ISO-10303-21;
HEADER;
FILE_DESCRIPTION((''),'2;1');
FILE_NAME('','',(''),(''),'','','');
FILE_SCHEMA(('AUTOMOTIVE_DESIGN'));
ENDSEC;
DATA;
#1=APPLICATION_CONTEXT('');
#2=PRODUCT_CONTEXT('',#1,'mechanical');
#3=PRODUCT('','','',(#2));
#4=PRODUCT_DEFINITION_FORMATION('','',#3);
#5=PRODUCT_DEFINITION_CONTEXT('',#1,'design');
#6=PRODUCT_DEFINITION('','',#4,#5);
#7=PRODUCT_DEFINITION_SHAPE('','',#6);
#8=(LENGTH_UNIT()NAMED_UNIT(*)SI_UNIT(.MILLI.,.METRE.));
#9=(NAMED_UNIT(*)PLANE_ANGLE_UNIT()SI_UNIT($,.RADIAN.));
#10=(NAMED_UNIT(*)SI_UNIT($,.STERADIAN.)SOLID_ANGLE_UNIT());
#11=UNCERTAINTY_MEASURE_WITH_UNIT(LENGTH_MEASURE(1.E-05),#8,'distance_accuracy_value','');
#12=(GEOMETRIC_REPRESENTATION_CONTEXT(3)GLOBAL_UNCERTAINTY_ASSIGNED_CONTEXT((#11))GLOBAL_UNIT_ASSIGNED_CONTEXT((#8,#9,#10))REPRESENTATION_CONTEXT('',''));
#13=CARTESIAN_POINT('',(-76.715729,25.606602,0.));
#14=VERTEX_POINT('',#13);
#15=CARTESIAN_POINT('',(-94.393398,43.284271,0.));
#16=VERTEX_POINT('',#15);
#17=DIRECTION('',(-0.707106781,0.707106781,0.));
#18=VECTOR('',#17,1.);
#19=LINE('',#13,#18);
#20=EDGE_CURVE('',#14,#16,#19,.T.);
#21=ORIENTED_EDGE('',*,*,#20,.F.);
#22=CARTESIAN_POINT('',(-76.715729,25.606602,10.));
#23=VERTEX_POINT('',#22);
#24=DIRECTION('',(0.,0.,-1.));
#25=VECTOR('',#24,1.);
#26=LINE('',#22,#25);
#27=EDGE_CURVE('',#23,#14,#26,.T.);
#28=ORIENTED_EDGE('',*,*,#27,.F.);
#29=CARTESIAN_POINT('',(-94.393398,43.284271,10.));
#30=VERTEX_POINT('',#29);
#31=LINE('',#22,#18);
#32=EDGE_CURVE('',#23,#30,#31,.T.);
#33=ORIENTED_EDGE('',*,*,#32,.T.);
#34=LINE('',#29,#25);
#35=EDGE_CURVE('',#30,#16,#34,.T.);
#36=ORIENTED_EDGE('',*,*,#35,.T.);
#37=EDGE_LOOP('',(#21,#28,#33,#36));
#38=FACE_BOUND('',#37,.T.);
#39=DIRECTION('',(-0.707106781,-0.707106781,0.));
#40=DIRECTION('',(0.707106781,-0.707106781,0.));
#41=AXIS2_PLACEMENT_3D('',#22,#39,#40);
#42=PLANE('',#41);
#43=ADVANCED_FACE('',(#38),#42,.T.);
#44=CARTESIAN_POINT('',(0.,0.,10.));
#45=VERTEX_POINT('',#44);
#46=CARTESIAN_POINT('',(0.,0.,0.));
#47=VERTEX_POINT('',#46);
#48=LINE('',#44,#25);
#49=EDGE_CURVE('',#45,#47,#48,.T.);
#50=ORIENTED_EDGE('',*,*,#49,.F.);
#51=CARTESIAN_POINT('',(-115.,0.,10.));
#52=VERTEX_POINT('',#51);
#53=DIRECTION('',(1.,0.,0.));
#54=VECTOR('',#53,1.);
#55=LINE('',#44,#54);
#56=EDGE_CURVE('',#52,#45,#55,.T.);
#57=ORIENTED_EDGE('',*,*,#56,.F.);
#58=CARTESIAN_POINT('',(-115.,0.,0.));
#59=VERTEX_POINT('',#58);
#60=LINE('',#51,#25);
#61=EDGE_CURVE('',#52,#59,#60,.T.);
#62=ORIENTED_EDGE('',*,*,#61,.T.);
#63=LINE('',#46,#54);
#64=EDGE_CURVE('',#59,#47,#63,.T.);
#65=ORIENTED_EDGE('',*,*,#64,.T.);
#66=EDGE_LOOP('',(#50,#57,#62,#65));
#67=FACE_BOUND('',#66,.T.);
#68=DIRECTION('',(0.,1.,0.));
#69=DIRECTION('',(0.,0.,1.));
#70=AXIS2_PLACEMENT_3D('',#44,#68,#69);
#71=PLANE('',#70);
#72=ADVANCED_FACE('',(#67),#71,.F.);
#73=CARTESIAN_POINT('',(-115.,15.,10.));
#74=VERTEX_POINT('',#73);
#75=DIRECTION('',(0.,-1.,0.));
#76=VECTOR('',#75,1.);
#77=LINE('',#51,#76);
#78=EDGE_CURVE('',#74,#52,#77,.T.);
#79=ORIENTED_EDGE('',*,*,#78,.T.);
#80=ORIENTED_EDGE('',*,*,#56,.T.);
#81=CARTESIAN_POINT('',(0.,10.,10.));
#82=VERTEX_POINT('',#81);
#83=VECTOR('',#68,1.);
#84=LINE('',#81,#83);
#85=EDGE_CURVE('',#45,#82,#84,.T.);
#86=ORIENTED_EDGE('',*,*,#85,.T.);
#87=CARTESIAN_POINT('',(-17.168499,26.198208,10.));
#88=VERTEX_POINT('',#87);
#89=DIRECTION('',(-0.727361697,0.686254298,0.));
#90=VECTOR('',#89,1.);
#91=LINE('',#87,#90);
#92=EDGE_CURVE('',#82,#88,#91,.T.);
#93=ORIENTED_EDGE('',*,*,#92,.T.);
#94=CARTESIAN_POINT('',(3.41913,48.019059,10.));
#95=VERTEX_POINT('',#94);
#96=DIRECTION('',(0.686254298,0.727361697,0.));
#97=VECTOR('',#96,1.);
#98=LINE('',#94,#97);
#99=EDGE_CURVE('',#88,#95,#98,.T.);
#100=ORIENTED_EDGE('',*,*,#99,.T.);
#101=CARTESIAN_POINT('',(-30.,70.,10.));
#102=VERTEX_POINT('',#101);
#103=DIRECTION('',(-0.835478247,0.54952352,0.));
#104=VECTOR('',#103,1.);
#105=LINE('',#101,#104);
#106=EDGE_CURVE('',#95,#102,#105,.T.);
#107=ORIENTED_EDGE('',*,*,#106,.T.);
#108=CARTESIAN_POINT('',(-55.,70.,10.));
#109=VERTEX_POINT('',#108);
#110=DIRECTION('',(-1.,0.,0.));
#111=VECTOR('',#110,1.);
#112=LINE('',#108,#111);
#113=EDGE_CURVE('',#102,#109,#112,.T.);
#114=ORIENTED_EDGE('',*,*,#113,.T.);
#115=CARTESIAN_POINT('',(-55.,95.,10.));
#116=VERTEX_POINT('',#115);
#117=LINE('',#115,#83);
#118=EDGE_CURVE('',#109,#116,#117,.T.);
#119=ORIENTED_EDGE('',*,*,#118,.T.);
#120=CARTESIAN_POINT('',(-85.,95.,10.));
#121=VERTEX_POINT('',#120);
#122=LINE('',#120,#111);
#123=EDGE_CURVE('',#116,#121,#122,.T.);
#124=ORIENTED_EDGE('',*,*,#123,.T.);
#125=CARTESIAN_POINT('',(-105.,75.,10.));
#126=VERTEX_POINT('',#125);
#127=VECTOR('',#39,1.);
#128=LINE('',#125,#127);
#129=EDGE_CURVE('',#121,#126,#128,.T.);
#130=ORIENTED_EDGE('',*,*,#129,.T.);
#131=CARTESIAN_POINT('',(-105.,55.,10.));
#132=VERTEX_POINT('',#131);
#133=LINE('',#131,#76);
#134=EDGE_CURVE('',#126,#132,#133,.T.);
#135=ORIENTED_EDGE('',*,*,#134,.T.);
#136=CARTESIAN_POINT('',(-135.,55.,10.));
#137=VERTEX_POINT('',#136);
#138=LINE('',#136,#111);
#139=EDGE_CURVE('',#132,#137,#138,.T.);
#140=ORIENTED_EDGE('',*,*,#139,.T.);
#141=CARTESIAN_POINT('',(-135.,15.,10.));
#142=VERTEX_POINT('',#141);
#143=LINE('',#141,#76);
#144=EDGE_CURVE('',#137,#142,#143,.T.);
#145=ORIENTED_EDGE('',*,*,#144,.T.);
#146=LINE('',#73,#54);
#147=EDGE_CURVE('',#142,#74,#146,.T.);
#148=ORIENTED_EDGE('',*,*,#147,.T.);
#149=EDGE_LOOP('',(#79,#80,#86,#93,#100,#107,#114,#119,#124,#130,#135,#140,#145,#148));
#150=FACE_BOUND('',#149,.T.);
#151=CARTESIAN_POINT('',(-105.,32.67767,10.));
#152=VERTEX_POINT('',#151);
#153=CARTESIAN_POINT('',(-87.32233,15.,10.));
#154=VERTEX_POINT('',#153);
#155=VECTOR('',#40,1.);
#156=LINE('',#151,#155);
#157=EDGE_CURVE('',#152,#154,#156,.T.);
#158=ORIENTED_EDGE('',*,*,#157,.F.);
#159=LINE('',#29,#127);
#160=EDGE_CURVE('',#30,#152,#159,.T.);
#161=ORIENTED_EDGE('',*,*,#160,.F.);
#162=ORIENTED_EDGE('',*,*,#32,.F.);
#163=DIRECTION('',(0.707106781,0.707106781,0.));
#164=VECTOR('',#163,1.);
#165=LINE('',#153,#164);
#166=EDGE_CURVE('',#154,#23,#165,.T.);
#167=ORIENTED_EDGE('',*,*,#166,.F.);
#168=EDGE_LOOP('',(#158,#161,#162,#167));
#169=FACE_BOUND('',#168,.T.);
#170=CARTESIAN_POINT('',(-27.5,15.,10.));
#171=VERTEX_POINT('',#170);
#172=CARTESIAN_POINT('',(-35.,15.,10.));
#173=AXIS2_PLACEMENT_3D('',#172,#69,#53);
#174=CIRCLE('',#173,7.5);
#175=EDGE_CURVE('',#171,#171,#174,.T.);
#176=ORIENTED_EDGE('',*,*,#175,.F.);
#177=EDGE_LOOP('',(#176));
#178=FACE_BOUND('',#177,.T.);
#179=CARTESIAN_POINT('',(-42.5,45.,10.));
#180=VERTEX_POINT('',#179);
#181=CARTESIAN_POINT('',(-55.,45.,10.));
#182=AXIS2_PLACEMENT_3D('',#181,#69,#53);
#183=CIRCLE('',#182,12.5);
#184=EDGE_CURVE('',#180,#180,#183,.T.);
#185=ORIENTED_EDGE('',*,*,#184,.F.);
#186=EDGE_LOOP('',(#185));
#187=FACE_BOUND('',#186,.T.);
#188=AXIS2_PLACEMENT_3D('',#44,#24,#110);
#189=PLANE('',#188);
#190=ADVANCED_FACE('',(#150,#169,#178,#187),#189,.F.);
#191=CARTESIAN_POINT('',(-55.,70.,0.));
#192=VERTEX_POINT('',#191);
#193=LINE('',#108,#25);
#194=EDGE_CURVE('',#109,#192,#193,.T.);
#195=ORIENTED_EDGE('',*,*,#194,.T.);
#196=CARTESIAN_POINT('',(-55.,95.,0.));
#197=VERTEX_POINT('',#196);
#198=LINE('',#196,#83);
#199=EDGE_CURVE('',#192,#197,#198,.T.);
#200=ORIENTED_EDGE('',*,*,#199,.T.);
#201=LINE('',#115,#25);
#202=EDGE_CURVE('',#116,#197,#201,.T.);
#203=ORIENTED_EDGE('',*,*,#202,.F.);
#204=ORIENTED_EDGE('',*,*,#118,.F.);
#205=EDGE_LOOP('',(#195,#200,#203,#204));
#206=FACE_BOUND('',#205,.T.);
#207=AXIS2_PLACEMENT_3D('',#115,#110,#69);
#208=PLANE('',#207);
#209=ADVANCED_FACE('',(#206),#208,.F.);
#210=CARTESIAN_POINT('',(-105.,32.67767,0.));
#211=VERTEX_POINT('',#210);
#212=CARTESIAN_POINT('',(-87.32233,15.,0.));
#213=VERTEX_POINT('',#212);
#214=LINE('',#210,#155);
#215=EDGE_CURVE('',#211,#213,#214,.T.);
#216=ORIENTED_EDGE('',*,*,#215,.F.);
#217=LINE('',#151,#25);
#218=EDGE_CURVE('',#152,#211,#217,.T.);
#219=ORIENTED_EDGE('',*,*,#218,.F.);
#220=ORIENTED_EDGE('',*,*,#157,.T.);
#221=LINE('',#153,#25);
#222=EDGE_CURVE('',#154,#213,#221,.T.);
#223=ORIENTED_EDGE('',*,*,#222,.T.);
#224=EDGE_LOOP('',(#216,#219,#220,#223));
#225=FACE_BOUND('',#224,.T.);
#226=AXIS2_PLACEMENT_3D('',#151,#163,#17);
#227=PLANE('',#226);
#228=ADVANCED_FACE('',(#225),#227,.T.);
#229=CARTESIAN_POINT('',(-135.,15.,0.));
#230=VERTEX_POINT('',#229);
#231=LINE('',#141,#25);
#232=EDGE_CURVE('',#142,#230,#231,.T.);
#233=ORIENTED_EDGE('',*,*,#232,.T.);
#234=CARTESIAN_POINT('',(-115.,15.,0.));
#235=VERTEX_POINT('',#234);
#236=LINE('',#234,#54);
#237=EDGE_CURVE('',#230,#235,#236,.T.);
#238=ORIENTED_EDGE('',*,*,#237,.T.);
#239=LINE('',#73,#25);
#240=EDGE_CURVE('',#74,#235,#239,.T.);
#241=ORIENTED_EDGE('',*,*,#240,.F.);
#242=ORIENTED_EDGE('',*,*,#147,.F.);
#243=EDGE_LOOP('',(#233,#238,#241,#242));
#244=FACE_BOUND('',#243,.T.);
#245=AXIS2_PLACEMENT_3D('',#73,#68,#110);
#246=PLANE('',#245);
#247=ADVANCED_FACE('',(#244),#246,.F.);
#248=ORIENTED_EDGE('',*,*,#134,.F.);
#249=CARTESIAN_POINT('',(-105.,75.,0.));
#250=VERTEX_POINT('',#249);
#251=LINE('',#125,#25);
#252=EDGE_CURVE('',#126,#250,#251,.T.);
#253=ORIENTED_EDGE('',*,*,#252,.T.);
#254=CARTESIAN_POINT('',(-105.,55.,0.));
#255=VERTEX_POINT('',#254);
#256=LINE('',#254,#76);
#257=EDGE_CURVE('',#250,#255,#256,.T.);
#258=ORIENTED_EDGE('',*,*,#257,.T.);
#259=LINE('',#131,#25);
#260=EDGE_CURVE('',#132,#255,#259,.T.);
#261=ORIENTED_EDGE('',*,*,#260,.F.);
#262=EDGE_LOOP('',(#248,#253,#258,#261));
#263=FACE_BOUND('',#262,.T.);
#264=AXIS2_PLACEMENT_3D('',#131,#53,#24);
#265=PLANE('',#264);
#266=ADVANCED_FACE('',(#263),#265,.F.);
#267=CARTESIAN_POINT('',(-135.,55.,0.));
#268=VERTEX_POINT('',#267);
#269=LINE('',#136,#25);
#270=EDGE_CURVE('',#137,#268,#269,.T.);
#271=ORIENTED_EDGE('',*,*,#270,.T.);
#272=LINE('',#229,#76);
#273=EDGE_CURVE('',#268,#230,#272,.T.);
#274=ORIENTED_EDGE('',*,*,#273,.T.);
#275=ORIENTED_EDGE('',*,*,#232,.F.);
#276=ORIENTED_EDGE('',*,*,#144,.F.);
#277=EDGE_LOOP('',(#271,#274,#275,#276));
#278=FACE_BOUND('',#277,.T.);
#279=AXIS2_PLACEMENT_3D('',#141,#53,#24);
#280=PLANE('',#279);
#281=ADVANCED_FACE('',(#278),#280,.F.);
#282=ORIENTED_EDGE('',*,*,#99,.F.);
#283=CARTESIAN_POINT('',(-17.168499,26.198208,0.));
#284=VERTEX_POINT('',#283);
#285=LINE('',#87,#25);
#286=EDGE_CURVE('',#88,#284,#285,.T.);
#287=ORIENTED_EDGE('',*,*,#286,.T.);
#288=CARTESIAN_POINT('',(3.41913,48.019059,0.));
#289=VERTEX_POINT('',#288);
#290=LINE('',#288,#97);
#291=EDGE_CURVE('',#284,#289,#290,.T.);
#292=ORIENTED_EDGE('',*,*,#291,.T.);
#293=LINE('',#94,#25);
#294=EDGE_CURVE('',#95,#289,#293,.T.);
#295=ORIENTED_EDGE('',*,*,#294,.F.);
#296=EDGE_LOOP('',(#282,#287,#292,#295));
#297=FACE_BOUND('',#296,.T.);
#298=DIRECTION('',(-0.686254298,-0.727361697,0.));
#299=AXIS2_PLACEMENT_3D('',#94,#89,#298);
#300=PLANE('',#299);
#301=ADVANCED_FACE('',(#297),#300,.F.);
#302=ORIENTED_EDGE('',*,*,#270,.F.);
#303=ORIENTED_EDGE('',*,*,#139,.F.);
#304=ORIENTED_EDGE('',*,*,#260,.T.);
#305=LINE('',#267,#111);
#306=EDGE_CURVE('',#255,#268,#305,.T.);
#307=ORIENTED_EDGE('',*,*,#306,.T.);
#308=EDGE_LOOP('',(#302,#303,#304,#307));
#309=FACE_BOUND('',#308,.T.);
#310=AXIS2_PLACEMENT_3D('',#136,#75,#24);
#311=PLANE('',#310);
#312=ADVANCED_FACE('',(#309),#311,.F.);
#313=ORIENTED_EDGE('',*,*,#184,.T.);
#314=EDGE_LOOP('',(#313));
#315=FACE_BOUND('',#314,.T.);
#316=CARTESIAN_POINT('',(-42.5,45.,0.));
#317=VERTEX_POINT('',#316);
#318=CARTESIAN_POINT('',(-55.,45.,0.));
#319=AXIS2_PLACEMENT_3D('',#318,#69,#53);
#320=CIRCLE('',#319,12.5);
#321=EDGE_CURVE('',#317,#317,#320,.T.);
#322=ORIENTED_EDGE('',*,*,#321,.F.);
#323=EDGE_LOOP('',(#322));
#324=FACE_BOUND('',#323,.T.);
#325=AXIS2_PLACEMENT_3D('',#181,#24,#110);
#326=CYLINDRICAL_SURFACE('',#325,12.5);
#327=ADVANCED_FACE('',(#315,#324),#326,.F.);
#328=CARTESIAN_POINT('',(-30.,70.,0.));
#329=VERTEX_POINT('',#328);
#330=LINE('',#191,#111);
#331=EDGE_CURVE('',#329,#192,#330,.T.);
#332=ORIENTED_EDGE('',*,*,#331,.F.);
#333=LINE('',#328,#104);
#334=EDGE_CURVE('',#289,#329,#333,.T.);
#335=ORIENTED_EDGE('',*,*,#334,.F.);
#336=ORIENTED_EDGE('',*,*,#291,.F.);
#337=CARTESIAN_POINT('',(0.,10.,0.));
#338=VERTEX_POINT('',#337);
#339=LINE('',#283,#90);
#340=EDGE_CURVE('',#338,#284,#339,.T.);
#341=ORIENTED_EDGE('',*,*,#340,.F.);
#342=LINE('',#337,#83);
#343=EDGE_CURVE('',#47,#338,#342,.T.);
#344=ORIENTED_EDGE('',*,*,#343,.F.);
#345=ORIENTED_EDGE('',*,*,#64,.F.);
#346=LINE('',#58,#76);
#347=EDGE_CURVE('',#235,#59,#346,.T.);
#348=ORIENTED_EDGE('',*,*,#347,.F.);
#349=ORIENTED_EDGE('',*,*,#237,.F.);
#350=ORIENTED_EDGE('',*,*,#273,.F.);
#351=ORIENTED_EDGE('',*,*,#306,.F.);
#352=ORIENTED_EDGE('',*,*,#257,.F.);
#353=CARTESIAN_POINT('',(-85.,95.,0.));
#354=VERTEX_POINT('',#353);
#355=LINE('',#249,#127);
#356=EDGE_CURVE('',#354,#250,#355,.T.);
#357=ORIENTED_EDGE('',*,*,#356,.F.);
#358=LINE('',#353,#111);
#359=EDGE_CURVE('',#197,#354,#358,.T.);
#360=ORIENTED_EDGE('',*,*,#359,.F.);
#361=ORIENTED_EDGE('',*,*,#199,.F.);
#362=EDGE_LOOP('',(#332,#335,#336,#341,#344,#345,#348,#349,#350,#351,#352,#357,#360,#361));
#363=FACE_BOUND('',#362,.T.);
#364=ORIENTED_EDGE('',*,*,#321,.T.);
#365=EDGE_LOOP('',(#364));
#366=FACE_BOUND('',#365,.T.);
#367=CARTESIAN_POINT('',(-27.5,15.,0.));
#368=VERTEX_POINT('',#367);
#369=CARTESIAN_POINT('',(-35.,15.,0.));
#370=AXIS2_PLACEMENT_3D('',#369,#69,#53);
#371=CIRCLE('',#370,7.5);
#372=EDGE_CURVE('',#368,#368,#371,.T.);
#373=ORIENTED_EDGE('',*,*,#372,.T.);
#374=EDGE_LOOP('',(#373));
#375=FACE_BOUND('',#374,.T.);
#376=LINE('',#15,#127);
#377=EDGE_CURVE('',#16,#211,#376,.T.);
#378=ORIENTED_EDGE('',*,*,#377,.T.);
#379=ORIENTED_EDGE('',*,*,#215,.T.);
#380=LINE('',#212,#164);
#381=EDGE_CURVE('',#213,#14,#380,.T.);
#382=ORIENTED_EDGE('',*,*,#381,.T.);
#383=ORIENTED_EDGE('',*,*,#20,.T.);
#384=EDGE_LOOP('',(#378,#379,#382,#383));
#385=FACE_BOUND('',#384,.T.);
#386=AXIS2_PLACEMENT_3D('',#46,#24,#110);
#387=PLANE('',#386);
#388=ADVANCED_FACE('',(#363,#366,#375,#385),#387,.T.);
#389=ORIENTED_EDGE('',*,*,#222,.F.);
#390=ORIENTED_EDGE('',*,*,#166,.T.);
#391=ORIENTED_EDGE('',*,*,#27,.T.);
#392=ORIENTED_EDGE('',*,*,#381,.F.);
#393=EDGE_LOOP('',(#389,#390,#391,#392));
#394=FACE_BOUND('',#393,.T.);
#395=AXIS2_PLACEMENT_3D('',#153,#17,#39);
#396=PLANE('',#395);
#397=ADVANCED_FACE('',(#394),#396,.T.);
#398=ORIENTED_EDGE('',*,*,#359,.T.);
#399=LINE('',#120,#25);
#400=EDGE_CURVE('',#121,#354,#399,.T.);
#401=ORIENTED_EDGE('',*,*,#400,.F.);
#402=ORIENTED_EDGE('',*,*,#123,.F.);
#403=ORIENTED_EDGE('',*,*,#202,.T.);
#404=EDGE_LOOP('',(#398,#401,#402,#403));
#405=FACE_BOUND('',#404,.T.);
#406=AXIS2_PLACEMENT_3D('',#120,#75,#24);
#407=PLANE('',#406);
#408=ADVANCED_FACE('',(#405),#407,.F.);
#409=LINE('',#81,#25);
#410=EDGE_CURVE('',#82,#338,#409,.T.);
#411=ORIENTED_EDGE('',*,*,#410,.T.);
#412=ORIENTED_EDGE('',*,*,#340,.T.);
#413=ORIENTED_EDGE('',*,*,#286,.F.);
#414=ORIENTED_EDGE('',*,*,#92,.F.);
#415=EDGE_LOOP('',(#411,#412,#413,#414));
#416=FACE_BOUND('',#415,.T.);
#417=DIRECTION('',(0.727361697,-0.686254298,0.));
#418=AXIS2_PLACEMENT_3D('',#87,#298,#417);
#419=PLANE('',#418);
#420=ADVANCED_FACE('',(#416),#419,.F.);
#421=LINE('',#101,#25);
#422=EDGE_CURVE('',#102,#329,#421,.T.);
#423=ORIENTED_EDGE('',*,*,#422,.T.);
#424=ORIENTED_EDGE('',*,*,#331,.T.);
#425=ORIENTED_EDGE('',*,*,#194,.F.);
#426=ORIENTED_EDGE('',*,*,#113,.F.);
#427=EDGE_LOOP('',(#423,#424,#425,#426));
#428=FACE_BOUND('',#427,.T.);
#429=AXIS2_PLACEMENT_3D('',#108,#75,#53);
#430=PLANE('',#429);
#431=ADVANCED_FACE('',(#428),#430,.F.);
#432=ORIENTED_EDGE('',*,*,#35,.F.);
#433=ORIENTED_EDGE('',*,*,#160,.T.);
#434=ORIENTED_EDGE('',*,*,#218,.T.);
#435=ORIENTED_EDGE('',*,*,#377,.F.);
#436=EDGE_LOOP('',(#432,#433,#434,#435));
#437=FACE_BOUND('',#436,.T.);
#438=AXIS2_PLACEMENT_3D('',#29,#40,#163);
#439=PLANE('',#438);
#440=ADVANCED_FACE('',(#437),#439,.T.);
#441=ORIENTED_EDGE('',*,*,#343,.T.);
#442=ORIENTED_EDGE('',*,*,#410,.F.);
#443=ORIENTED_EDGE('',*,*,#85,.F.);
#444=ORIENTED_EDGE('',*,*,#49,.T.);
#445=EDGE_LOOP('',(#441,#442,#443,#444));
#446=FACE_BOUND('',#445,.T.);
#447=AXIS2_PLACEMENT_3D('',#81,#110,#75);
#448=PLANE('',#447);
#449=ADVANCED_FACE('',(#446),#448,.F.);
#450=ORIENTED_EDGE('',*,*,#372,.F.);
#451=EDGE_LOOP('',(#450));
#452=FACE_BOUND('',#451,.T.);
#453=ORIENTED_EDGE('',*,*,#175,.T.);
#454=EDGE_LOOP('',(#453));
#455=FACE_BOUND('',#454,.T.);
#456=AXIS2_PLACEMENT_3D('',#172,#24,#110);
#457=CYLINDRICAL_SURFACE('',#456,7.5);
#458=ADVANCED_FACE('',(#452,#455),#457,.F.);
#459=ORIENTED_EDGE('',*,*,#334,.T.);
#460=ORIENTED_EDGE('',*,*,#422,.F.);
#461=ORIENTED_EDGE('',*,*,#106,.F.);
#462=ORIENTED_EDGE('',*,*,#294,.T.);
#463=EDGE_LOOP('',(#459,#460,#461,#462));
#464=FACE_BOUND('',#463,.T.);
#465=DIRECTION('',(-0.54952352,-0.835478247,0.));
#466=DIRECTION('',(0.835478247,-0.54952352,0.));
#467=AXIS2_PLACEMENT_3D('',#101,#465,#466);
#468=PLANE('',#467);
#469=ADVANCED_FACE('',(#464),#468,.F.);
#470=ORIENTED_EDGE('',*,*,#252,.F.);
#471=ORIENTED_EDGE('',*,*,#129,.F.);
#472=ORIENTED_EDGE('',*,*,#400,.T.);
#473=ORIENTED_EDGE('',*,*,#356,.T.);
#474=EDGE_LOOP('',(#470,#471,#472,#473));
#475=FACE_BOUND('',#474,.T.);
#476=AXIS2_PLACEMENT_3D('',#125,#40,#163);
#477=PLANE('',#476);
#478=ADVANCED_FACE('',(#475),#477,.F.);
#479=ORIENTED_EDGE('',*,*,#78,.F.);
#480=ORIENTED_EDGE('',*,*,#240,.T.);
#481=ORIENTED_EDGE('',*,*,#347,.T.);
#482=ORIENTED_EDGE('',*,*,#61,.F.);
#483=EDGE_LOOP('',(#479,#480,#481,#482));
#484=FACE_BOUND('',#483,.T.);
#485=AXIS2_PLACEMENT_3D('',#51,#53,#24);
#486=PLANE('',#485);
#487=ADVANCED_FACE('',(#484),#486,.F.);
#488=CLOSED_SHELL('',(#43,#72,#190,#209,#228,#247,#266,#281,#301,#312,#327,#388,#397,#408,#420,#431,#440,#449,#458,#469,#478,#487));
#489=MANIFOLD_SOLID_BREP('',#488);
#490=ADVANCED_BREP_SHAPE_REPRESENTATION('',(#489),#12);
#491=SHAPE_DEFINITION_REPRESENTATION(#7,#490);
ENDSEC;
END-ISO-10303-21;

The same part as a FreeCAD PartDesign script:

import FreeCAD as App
import Part
import Sketcher
from FreeCAD import Vector
Q = App.Units.Quantity


def add_polygon(sketch, points):
    """Adds a closed chain of lines whose ends are joined by coincident constraints."""
    first, n = sketch.GeometryCount, len(points)
    for a, b in zip(points, points[1:] + points[:1]):
        sketch.addGeometry(Part.LineSegment(App.Vector(*a, 0), App.Vector(*b, 0)), False)
    for i in range(n):
        sketch.addConstraint(Sketcher.Constraint("Coincident", first + i, 2, first + (i + 1) % n, 1))

doc = App.newDocument("Part")
params = doc.addObject("Spreadsheet::Sheet", "Params")
for row, (alias, value) in enumerate([
    ("sketch1_diameter", "15 mm"),
    ("sketch1_diameter2", "25 mm"),
    ("sketch1_width", "115 mm"),
    ("sketch1_width2", "25 mm"),
    ("sketch1_width3", "30 mm"),
    ("pad1_length", "10 mm"),
], start=1):
    params.set(f"A{row}", alias)
    params.set(f"B{row}", "=" + value)
    params.setAlias(f"B{row}", alias)

body = doc.addObject("PartDesign::Body", "Body")

# Sketch on XY plane
sketch1 = body.newObject("Sketcher::SketchObject", "Sketch")
sketch1.AttachmentSupport = (doc.getObject("XY_Plane"), [""])
sketch1.MapMode = "FlatFace"
add_polygon(sketch1, [(-115, 0), (0, 0), (0, 10), (-17, 26), (3, 48), (-30, 70), (-55, 70), (-55, 95), (-85, 95), (-105, 75), (-105, 55), (-135, 55), (-135, 15), (-115, 15)])  # lines 0-13
sketch1.addGeometry(Part.Circle(Vector(-35, 15, 0), Vector(0, 0, 1), 8), False)  # 14
add_polygon(sketch1, [(-105, 33), (-94, 43), (-77, 26), (-87, 15)])  # lines 15-18
sketch1.addGeometry(Part.Circle(Vector(-55, 45, 0), Vector(0, 0, 1), 12), False)  # 19
sketch1.addConstraint(Sketcher.Constraint("Horizontal", 0))
sketch1.addConstraint(Sketcher.Constraint("Vertical", 1))
sketch1.addConstraint(Sketcher.Constraint("Horizontal", 5))
sketch1.addConstraint(Sketcher.Constraint("Vertical", 6))
sketch1.addConstraint(Sketcher.Constraint("Horizontal", 7))
sketch1.addConstraint(Sketcher.Constraint("Vertical", 9))
sketch1.addConstraint(Sketcher.Constraint("Horizontal", 10))
sketch1.addConstraint(Sketcher.Constraint("Vertical", 11))
sketch1.addConstraint(Sketcher.Constraint("Horizontal", 12))
sketch1.addConstraint(Sketcher.Constraint("Vertical", 13))
sketch1.addConstraint(Sketcher.Constraint("Coincident", 0, 2, -1, 1))
sketch1.addConstraint(Sketcher.Constraint("Perpendicular", 2, 3))
sketch1.addConstraint(Sketcher.Constraint("Parallel", 8, 15))
sketch1.addConstraint(Sketcher.Constraint("Perpendicular", 15, 16))
sketch1.addConstraint(Sketcher.Constraint("Perpendicular", 16, 17))
sketch1.addConstraint(Sketcher.Constraint("Perpendicular", 17, 18))
sketch1.addConstraint(Sketcher.Constraint("Horizontal", 14, 3, 11, 2))
sketch1.addConstraint(Sketcher.Constraint("Horizontal", 12, 2, 17, 2))
sketch1.addConstraint(Sketcher.Constraint("Vertical", 19, 3, 5, 2))
sketch1.addConstraint(Sketcher.Constraint("Vertical", 9, 2, 18, 2))
sketch1.addConstraint(Sketcher.Constraint("Equal", 7, 10))
sketch1.addConstraint(Sketcher.Constraint("Equal", 5, 6))
sketch1.addConstraint(Sketcher.Constraint("Equal", 12, 9))
sketch1.addConstraint(Sketcher.Constraint("Diameter", 14, Q("15 mm")))
sketch1.addConstraint(Sketcher.Constraint("Diameter", 19, Q("25 mm")))
sketch1.addConstraint(Sketcher.Constraint("DistanceX", 0, 1, 0, 2, Q("115 mm")))
sketch1.addConstraint(Sketcher.Constraint("DistanceX", 5, 2, 5, 1, Q("25 mm")))
sketch1.addConstraint(Sketcher.Constraint("DistanceX", 7, 2, 7, 1, Q("30 mm")))
sketch1.addConstraint(Sketcher.Constraint("DistanceX", 12, 1, 12, 2, Q("20 mm")))
sketch1.addConstraint(Sketcher.Constraint("DistanceY", 1, 1, 1, 2, Q("10 mm")))
sketch1.addConstraint(Sketcher.Constraint("DistanceY", 11, 2, 11, 1, Q("40 mm")))
sketch1.addConstraint(Sketcher.Constraint("DistanceY", 13, 2, 13, 1, Q("15 mm")))
sketch1.addConstraint(Sketcher.Constraint("Angle", 8, Q("-135 deg")))
sketch1.addConstraint(Sketcher.Constraint("Distance", 3, Q("30 mm")))
sketch1.addConstraint(Sketcher.Constraint("Distance", 4, Q("40 mm")))
sketch1.addConstraint(Sketcher.Constraint("Distance", 15, Q("15 mm")))
sketch1.addConstraint(Sketcher.Constraint("Distance", 16, Q("25 mm")))
sketch1.addConstraint(Sketcher.Constraint("DistanceX", 14, 3, -1, 1, Q("35 mm")))
sketch1.addConstraint(Sketcher.Constraint("DistanceX", 19, 3, -1, 1, Q("55 mm")))
sketch1.addConstraint(Sketcher.Constraint("DistanceY", -1, 1, 19, 3, Q("45 mm")))
sketch1.addConstraint(Sketcher.Constraint("Distance", 2, Q("23.603799 mm")))
sketch1.setExpression("Constraints[41]", "Params.sketch1_diameter")
sketch1.setExpression("Constraints[42]", "Params.sketch1_diameter2")
sketch1.setExpression("Constraints[43]", "Params.sketch1_width")
sketch1.setExpression("Constraints[44]", "Params.sketch1_width2")
sketch1.setExpression("Constraints[45]", "Params.sketch1_width3")
pad1 = body.newObject("PartDesign::Pad", "Pad")
pad1.Profile = sketch1
pad1.setExpression("Length", "Params.pad1_length")

doc.recompute()
